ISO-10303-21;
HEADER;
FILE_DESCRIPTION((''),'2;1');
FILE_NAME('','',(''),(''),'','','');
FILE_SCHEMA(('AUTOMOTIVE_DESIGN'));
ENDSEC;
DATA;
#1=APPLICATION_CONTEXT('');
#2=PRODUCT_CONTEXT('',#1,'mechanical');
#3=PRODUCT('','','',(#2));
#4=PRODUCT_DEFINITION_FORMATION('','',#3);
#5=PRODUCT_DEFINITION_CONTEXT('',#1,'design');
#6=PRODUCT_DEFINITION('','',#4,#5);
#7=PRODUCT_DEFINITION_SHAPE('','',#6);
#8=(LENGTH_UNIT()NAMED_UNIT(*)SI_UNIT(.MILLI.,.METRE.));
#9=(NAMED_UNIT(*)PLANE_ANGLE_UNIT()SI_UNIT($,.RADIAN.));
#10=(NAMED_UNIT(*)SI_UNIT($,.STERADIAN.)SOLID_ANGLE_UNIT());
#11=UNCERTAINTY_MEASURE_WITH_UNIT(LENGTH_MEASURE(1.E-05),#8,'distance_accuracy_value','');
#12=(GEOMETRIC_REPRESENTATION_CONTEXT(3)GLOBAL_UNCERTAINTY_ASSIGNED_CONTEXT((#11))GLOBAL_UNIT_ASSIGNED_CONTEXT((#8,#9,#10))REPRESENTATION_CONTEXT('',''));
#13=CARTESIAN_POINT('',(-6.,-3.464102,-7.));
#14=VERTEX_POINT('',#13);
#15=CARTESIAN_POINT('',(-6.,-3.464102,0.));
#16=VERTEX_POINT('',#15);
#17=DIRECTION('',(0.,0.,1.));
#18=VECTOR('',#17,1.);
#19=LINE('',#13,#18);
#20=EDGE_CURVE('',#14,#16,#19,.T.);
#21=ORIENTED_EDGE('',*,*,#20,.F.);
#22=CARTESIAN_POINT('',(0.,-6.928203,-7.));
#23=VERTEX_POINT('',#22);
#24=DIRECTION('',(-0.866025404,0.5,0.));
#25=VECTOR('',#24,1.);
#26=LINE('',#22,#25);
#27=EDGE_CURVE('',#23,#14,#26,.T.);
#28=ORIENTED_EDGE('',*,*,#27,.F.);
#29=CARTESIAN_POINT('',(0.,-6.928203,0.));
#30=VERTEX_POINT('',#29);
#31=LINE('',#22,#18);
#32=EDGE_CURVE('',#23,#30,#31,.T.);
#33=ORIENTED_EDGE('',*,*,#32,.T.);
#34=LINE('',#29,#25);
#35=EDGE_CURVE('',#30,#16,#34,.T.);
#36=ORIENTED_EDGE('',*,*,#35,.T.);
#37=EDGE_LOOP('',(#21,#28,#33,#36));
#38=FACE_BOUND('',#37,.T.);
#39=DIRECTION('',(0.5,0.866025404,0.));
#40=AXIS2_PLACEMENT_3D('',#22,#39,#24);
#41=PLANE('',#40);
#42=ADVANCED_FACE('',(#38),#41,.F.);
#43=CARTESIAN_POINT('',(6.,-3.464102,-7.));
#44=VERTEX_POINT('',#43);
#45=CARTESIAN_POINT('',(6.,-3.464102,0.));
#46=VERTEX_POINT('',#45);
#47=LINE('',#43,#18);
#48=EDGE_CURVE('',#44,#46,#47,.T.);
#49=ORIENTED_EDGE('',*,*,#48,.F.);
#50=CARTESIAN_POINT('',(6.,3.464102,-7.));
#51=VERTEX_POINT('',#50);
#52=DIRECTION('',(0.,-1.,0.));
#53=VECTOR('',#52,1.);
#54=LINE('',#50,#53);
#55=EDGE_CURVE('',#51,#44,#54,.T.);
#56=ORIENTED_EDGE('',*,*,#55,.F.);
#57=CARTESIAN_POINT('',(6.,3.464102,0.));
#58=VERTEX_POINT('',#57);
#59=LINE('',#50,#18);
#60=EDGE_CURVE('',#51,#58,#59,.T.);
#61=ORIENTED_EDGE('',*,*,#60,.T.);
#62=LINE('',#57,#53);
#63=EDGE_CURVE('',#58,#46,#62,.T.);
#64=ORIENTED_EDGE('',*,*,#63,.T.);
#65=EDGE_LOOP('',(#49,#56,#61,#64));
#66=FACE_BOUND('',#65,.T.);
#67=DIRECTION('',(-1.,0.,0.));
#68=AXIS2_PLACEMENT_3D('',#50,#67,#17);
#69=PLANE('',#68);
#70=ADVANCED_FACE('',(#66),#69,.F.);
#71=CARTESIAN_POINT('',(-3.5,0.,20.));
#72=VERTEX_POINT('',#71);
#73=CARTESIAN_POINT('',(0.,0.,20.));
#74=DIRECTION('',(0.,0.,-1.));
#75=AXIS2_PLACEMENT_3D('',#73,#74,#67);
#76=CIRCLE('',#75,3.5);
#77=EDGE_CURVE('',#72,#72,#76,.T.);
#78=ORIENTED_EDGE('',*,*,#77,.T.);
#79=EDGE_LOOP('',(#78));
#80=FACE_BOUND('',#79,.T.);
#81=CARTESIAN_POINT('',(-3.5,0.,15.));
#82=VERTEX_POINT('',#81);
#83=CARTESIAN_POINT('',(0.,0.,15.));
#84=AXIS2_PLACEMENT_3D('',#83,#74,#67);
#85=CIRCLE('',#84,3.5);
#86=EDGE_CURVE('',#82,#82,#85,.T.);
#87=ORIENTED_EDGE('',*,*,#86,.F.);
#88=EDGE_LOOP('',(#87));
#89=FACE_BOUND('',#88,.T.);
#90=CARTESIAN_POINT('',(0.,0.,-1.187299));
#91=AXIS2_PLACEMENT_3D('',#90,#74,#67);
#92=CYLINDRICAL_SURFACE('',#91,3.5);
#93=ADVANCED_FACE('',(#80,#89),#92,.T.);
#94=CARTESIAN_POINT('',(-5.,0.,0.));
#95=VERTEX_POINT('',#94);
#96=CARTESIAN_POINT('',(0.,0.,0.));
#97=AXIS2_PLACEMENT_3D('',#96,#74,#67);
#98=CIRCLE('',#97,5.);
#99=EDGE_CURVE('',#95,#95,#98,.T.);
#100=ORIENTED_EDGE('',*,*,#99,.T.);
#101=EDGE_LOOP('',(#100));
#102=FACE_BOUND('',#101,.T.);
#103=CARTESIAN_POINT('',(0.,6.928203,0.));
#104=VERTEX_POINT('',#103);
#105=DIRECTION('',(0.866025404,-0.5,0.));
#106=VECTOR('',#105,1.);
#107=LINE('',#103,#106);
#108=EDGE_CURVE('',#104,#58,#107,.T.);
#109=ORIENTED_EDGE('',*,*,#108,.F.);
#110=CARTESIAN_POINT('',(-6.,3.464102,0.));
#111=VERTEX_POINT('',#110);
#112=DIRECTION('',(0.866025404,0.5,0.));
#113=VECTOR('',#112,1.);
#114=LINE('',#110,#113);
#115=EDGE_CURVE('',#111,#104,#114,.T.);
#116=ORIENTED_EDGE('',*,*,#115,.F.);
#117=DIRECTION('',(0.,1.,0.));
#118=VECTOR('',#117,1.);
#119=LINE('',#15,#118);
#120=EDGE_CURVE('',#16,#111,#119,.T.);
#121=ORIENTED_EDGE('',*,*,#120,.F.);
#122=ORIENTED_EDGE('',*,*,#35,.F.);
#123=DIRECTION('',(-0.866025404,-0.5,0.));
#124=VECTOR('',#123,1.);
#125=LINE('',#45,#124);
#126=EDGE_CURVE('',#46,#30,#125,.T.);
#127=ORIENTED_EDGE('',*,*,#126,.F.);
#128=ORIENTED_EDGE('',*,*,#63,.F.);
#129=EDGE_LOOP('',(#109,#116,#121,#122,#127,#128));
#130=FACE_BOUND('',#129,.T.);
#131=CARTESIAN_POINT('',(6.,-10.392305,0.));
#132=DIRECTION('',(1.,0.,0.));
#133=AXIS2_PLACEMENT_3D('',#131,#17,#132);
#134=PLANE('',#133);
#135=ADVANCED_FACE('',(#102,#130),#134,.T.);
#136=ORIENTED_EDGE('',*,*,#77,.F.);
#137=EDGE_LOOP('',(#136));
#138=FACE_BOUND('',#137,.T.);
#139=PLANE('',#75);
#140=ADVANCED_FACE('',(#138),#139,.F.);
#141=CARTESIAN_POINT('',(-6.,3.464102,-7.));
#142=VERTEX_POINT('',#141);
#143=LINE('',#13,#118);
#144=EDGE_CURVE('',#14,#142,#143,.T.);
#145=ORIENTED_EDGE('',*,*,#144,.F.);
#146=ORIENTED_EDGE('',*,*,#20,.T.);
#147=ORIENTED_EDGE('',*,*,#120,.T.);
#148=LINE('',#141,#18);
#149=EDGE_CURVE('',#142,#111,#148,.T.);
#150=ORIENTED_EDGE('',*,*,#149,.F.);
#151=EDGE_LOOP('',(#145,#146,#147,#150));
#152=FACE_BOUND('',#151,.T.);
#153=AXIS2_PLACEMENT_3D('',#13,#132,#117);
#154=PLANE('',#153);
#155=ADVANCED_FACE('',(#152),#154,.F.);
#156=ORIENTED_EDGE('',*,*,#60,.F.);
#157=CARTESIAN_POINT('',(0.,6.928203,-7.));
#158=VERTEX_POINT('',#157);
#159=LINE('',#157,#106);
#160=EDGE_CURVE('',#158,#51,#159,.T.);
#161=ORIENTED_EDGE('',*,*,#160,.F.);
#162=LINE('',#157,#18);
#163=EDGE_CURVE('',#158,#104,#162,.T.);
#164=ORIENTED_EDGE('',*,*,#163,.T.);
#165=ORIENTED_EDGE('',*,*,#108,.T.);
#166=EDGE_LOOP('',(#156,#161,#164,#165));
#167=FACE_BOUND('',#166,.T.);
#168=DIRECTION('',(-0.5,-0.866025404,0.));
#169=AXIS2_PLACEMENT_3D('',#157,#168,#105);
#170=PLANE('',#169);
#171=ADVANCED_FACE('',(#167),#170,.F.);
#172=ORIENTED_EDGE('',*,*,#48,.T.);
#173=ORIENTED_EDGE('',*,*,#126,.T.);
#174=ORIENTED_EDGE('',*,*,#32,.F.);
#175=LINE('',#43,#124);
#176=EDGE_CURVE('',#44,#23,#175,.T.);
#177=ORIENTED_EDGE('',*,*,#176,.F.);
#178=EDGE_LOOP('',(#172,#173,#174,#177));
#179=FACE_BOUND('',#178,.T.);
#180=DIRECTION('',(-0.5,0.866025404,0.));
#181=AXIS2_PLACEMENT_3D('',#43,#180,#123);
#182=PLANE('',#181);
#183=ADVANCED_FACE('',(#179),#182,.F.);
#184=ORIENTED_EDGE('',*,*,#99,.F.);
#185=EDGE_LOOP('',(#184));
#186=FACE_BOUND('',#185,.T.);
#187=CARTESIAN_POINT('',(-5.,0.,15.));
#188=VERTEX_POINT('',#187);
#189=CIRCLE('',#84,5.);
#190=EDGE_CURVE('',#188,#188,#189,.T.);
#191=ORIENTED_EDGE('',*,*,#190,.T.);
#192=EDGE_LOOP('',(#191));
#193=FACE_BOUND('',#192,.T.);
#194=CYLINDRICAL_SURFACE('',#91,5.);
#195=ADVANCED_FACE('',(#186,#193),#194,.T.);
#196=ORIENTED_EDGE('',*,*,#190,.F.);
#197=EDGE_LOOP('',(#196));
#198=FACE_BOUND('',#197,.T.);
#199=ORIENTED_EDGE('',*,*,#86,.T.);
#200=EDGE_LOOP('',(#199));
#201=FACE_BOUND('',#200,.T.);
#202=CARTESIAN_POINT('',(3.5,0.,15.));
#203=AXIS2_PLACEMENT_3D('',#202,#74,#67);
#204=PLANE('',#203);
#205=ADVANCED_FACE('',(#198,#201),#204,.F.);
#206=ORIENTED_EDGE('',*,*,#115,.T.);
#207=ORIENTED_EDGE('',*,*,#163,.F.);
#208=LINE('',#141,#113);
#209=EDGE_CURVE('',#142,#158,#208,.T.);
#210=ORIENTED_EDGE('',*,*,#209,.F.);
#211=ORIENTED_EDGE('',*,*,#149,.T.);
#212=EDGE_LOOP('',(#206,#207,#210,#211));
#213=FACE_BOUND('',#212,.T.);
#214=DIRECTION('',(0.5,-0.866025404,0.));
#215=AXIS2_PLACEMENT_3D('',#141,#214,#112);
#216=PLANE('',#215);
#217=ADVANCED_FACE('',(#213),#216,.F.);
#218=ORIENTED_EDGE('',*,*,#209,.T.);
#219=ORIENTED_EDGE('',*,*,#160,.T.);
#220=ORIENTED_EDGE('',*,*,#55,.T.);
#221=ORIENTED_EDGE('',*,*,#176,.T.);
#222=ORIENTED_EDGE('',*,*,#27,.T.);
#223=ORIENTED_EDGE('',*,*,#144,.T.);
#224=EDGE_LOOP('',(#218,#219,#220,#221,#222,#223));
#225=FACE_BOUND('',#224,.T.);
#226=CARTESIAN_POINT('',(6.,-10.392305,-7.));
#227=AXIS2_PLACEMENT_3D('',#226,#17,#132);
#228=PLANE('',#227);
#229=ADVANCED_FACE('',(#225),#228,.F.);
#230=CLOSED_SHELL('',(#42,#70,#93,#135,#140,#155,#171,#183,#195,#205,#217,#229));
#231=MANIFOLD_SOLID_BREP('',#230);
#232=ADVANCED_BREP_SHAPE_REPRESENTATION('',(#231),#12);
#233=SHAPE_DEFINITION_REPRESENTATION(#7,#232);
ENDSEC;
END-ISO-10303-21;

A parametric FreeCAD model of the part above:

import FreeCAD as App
import Part
import Sketcher
from FreeCAD import Vector
Q = App.Units.Quantity


def add_polygon(sketch, points):
    """Adds a closed chain of lines whose ends are joined by coincident constraints."""
    first, n = sketch.GeometryCount, len(points)
    for a, b in zip(points, points[1:] + points[:1]):
        sketch.addGeometry(Part.LineSegment(App.Vector(*a, 0), App.Vector(*b, 0)), False)
    for i in range(n):
        sketch.addConstraint(Sketcher.Constraint("Coincident", first + i, 2, first + (i + 1) % n, 1))

doc = App.newDocument("Part")
body = doc.addObject("PartDesign::Body", "Body")

sketch1 = body.newObject("Sketcher::SketchObject", "Sketch")
sketch1.AttachmentSupport = (doc.getObject("XZ_Plane"), [""])
sketch1.MapMode = "FlatFace"
add_polygon(sketch1, [(0, 0), (0, 20), (3.5, 20), (3.5, 15), (5, 15), (5, 0)])
sketch1.addConstraint(Sketcher.Constraint("Vertical", 0))
sketch1.addConstraint(Sketcher.Constraint("Horizontal", 1))
sketch1.addConstraint(Sketcher.Constraint("Vertical", 2))
sketch1.addConstraint(Sketcher.Constraint("Horizontal", 3))
sketch1.addConstraint(Sketcher.Constraint("Vertical", 4))
sketch1.addConstraint(Sketcher.Constraint("Horizontal", 5))
sketch1.addConstraint(Sketcher.Constraint("Coincident", 5, 2, -1, 1))
sketch1.addConstraint(Sketcher.Constraint("Equal", 5, 2))
sketch1.addConstraint(Sketcher.Constraint("DistanceX", 5, 2, 5, 1, 5.0))
sketch1.addConstraint(Sketcher.Constraint("DistanceY", 0, 1, 0, 2, 20.0))
sketch1.addConstraint(Sketcher.Constraint("DistanceX", 1, 1, 1, 2, 3.5))
revolution = body.newObject("PartDesign::Revolution", "Revolution")
revolution.Profile = sketch1
revolution.ReferenceAxis = (sketch1, ["V_Axis"])
revolution.Angle = 360

sketch2 = body.newObject("Sketcher::SketchObject", "Sketch001")
sketch2.AttachmentSupport = (doc.getObject("XY_Plane"), [""])
sketch2.MapMode = "FlatFace"
add_polygon(sketch2, [(-6, -3), (-6, 3), (0, 7), (6, 3), (6, -3), (0, -7)])
sketch2.addConstraint(Sketcher.Constraint("Vertical", 0))
sketch2.addConstraint(Sketcher.Constraint("Vertical", 3))
sketch2.addConstraint(Sketcher.Constraint("Symmetric", 0, 2, 3, 2, -1, 1))
sketch2.addConstraint(Sketcher.Constraint("Symmetric", 1, 2, 4, 2, -1, 1))
sketch2.addConstraint(Sketcher.Constraint("PointOnObject", 1, 2, -2))
sketch2.addConstraint(Sketcher.Constraint("Parallel", 2, 5))
sketch2.addConstraint(Sketcher.Constraint("Horizontal", 0, 2, 2, 2))
sketch2.addConstraint(Sketcher.Constraint("Angle", 1, Q("30 deg")))
sketch2.addConstraint(Sketcher.Constraint("DistanceX", 0, 2, -1, 1, 6.0))
sketch2.addConstraint(Sketcher.Constraint("DistanceY", -1, 1, 0, 2, 3.464102))
pad1 = body.newObject("PartDesign::Pad", "Pad")
pad1.Profile = sketch2
pad1.Length = 7
pad1.Reversed = True

doc.recompute()
